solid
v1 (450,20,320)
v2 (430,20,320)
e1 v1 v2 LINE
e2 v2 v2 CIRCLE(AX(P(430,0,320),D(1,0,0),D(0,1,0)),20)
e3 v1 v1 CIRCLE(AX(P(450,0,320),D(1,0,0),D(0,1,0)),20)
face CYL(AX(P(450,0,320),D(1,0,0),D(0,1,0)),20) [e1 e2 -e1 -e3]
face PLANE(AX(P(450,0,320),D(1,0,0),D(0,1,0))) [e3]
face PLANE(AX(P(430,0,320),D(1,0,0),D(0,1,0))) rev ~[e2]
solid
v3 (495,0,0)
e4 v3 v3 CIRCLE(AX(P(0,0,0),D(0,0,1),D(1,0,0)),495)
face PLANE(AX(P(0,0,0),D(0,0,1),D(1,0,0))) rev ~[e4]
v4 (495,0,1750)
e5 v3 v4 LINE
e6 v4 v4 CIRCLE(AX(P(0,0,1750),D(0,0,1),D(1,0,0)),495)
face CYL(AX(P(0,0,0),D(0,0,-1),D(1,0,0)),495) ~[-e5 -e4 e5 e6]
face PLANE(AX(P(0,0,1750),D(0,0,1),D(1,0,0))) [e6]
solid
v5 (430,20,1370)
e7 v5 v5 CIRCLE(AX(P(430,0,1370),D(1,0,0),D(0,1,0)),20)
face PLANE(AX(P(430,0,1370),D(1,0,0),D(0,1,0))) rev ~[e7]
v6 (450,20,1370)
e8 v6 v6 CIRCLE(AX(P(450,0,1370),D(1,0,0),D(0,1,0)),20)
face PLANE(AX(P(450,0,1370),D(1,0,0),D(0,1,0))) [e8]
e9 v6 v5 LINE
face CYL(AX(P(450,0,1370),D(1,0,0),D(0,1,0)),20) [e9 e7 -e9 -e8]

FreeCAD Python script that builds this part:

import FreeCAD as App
import Part
import Sketcher
from FreeCAD import Vector

doc = App.newDocument("Part")
body = doc.addObject("PartDesign::Body", "Body")

sketch1 = body.newObject("Sketcher::SketchObject", "Sketch")
sketch1.AttachmentSupport = (doc.getObject("XY_Plane"), [""])
sketch1.MapMode = "FlatFace"
sketch1.addGeometry(Part.Circle(Vector(0, 0, 0), Vector(0, 0, 1), 495), False)
sketch1.addConstraint([
    Sketcher.Constraint("Coincident", 0, 3, -1, 1),
    Sketcher.Constraint("Diameter", 0, 990.0),
])
pad1 = body.newObject("PartDesign::Pad", "Pad")
pad1.Profile = sketch1
pad1.Length = 1750
body2 = doc.addObject("PartDesign::Body", "Body001")
body2.AllowCompound = True

sketch2 = body2.newObject("Sketcher::SketchObject", "Sketch001")
sketch2.AttachmentSupport = (doc.getObject("YZ_Plane001"), [""])
sketch2.MapMode = "FlatFace"
sketch2.AttachmentOffset = App.Placement(Vector(0, 0, 450), App.Rotation())
sketch2.addGeometry([
    Part.Circle(Vector(0, 320, 0), Vector(0, 0, 1), 20),
    Part.Circle(Vector(0, 1370, 0), Vector(0, 0, 1), 20),
], False)
sketch2.addConstraint([
    Sketcher.Constraint("Equal", 0, 1),
    Sketcher.Constraint("PointOnObject", 0, 3, -2),
    Sketcher.Constraint("PointOnObject", 1, 3, -2),
    Sketcher.Constraint("Diameter", 0, 40.0),
    Sketcher.Constraint("DistanceY", -1, 1, 0, 3, 320.0),
    Sketcher.Constraint("DistanceY", -1, 1, 1, 3, 1370.0),
])
pad2 = body2.newObject("PartDesign::Pad", "Pad001")
pad2.Profile = sketch2
pad2.Length = 20
pad2.Reversed = True

doc.recompute()
